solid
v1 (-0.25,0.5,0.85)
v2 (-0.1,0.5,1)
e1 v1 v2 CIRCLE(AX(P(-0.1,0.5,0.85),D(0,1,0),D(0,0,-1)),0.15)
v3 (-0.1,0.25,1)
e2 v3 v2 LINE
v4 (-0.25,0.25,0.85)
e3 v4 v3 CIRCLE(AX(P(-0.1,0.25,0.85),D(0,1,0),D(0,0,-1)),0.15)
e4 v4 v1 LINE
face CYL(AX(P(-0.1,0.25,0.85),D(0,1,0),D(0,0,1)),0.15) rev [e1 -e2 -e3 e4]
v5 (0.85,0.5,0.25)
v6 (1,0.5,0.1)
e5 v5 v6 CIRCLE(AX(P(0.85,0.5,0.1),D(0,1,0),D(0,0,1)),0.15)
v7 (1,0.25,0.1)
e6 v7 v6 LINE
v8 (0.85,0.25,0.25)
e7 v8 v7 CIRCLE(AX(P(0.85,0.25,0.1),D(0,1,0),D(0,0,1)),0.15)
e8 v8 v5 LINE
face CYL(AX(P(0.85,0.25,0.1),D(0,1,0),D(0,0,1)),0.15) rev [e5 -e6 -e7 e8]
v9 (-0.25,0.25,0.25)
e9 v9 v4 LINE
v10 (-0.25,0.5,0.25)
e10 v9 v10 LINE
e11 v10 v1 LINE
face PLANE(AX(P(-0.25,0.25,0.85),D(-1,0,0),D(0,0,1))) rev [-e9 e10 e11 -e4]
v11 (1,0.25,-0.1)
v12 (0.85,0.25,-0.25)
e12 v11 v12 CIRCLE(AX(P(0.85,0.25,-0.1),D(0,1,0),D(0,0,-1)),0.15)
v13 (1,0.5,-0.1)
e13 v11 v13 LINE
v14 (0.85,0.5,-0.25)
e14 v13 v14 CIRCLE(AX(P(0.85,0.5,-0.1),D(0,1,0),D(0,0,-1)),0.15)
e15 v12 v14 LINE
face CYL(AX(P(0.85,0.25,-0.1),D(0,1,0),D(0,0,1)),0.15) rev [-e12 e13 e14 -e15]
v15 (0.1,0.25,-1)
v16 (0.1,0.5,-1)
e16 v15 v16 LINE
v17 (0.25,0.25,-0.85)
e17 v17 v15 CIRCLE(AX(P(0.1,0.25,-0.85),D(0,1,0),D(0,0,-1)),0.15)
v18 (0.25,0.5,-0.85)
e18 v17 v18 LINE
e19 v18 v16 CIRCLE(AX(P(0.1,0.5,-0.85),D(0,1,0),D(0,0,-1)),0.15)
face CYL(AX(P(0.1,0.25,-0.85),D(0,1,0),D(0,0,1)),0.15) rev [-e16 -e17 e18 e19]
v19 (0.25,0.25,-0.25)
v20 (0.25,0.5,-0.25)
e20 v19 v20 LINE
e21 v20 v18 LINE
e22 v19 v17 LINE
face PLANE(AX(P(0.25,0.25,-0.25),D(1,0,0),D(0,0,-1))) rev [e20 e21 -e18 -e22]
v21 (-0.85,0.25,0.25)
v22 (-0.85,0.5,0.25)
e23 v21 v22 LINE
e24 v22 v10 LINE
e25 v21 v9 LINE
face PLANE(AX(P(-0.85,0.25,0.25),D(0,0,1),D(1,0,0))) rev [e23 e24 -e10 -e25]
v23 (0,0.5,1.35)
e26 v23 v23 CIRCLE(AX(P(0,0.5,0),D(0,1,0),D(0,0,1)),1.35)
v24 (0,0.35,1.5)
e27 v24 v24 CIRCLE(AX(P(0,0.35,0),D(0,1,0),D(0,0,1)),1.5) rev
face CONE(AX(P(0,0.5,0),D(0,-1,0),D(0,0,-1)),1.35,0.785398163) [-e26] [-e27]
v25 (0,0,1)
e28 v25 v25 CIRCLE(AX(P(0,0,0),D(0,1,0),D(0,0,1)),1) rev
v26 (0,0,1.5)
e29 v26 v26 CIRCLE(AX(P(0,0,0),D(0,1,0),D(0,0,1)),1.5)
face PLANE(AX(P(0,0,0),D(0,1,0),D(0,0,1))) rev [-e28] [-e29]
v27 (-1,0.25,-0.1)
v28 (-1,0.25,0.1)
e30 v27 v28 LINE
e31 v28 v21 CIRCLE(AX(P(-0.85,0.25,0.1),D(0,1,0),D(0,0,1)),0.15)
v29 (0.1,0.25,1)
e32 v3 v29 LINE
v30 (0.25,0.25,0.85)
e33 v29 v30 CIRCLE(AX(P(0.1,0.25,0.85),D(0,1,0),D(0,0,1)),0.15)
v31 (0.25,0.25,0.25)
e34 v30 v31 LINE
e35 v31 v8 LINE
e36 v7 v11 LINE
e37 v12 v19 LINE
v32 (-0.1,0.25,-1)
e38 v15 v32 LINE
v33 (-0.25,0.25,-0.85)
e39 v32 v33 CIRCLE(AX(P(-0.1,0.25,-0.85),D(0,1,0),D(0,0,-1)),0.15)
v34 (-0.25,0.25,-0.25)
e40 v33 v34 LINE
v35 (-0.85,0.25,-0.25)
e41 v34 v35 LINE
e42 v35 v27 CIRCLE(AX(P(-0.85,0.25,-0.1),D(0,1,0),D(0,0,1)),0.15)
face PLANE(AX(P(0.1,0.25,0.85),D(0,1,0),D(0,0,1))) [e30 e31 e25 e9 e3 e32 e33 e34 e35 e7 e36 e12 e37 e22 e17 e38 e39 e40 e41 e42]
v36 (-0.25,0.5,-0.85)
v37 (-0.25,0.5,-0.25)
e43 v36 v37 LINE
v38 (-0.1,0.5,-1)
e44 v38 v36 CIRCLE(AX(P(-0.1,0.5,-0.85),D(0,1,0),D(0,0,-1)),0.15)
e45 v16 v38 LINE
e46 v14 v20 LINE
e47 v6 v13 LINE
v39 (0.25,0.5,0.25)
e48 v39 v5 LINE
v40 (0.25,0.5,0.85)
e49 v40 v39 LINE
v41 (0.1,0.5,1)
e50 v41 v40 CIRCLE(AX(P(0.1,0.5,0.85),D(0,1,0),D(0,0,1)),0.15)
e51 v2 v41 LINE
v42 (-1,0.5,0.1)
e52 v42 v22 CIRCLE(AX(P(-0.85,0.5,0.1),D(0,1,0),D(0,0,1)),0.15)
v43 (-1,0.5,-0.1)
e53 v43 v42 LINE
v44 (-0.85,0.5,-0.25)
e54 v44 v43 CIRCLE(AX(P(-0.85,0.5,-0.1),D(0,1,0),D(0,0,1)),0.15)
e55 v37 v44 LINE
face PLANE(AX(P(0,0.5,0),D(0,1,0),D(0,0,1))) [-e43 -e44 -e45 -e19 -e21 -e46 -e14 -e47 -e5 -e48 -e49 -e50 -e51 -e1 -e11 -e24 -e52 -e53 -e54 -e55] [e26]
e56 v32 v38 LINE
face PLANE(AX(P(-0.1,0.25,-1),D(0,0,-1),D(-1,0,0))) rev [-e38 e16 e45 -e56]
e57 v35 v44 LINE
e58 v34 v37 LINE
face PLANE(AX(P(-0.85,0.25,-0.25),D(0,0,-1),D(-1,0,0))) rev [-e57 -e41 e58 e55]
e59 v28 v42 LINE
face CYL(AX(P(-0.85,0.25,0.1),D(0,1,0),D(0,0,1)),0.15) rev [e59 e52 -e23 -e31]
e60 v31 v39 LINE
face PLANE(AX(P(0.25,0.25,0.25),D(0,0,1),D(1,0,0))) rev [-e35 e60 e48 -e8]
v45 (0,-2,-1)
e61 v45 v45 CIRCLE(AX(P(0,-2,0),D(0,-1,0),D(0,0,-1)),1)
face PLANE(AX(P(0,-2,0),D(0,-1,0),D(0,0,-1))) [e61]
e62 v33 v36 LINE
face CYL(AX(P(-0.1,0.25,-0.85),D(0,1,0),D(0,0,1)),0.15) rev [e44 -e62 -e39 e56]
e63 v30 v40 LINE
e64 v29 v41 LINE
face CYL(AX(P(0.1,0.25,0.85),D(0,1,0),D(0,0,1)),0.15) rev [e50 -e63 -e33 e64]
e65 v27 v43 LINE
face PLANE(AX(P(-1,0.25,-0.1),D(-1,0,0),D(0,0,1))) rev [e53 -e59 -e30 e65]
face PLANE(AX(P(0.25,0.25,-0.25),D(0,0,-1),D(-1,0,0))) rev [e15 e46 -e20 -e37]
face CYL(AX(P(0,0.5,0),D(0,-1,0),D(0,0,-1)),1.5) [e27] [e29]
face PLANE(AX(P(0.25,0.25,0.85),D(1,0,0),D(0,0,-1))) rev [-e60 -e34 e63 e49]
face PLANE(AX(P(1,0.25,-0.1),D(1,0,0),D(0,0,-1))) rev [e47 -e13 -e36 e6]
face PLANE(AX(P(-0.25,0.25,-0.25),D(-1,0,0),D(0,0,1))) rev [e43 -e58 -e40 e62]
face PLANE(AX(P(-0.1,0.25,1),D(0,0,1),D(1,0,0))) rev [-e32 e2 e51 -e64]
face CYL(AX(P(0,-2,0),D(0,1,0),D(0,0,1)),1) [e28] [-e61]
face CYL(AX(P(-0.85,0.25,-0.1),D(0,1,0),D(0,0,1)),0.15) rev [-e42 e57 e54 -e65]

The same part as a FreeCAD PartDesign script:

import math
import FreeCAD as App
import Part
import Sketcher

V = App.Vector
Q = App.Units.Quantity


def edges_at(feature, points):
    """Names of the edges that pass closest to the given points."""
    edges = feature.Shape.Edges
    near = lambda p: min(range(len(edges)), key=lambda i: edges[i].distToShape(Part.Vertex(*p))[0])
    return sorted({f"Edge{near(p) + 1}" for p in points})

doc = App.newDocument("Part")
body = doc.addObject("PartDesign::Body", "Body")

# Sketch on XZ plane
sketch1 = doc.addObject("Sketcher::SketchObject", "Sketch")
body.addObject(sketch1)
sketch1.AttachmentSupport = (doc.XZ_Plane, [""])
sketch1.MapMode = "FlatFace"
sketch1.addGeometry(Part.Circle(V(0, 0, 0), V(0, 0, 1), 1.5), False)
sketch1.addConstraint(Sketcher.Constraint("Coincident", 0, 3, -1, 1))
sketch1.addConstraint(Sketcher.Constraint("Diameter", 0, Q("3 mm")))
pad1 = doc.addObject("PartDesign::Pad", "Pad")
body.addObject(pad1)
pad1.Profile = sketch1
pad1.Length = 0.5
pad1.Reversed = True

# Sketch on XZ plane
sketch2 = doc.addObject("Sketcher::SketchObject", "Sketch001")
body.addObject(sketch2)
sketch2.AttachmentSupport = (doc.XZ_Plane, [""])
sketch2.MapMode = "FlatFace"
sketch2.AttachmentOffset = App.Placement(V(0, 0, -0.5), App.Rotation())
sketch2.addGeometry(Part.LineSegment(V(-0.1, 1, 0), V(0.1, 1, 0)), False)
sketch2.addGeometry(Part.ArcOfCircle(Part.Circle(V(0.1, 0.85, 0), V(0, 0, 1), 0.15), math.radians(0), math.radians(90)), False)
sketch2.addGeometry(Part.LineSegment(V(0.25, 0.85, 0), V(0.25, 0.25, 0)), False)
sketch2.addGeometry(Part.LineSegment(V(0.25, 0.25, 0), V(0.85, 0.25, 0)), False)
sketch2.addGeometry(Part.ArcOfCircle(Part.Circle(V(0.85, 0.1, 0), V(0, 0, 1), 0.15), math.radians(0), math.radians(90)), False)
sketch2.addGeometry(Part.LineSegment(V(1, 0.1, 0), V(1, -0.1, 0)), False)
sketch2.addGeometry(Part.ArcOfCircle(Part.Circle(V(0.85, -0.1, 0), V(0, 0, 1), 0.15), math.radians(-90), math.radians(0)), False)
sketch2.addGeometry(Part.LineSegment(V(0.85, -0.25, 0), V(0.25, -0.25, 0)), False)
sketch2.addGeometry(Part.LineSegment(V(0.25, -0.25, 0), V(0.25, -0.85, 0)), False)
sketch2.addGeometry(Part.ArcOfCircle(Part.Circle(V(0.1, -0.85, 0), V(0, 0, 1), 0.15), math.radians(-90), math.radians(0)), False)
sketch2.addGeometry(Part.LineSegment(V(0.1, -1, 0), V(-0.1, -1, 0)), False)
sketch2.addGeometry(Part.ArcOfCircle(Part.Circle(V(-0.1, -0.85, 0), V(0, 0, 1), 0.15), math.radians(-180), math.radians(-90)), False)
sketch2.addGeometry(Part.LineSegment(V(-0.25, -0.85, 0), V(-0.25, -0.25, 0)), False)
sketch2.addGeometry(Part.LineSegment(V(-0.25, -0.25, 0), V(-0.85, -0.25, 0)), False)
sketch2.addGeometry(Part.ArcOfCircle(Part.Circle(V(-0.85, -0.1, 0), V(0, 0, 1), 0.15), math.radians(-180), math.radians(-90)), False)
sketch2.addGeometry(Part.LineSegment(V(-1, -0.1, 0), V(-1, 0.1, 0)), False)
sketch2.addGeometry(Part.ArcOfCircle(Part.Circle(V(-0.85, 0.1, 0), V(0, 0, 1), 0.15), math.radians(90), math.radians(180)), False)
sketch2.addGeometry(Part.LineSegment(V(-0.85, 0.25, 0), V(-0.25, 0.25, 0)), False)
sketch2.addGeometry(Part.LineSegment(V(-0.25, 0.25, 0), V(-0.25, 0.85, 0)), False)
sketch2.addGeometry(Part.ArcOfCircle(Part.Circle(V(-0.1, 0.85, 0), V(0, 0, 1), 0.15), math.radians(90), math.radians(180)), False)
sketch2.addConstraint(Sketcher.Constraint("Tangent", 0, 2, 1, 2))
sketch2.addConstraint(Sketcher.Constraint("Tangent", 1, 1, 2, 1))
sketch2.addConstraint(Sketcher.Constraint("Coincident", 2, 2, 3, 1))
sketch2.addConstraint(Sketcher.Constraint("Tangent", 3, 2, 4, 2))
sketch2.addConstraint(Sketcher.Constraint("Tangent", 4, 1, 5, 1))
sketch2.addConstraint(Sketcher.Constraint("Tangent", 5, 2, 6, 2))
sketch2.addConstraint(Sketcher.Constraint("Tangent", 6, 1, 7, 1))
sketch2.addConstraint(Sketcher.Constraint("Coincident", 7, 2, 8, 1))
sketch2.addConstraint(Sketcher.Constraint("Tangent", 8, 2, 9, 2))
sketch2.addConstraint(Sketcher.Constraint("Tangent", 9, 1, 10, 1))
sketch2.addConstraint(Sketcher.Constraint("Tangent", 10, 2, 11, 2))
sketch2.addConstraint(Sketcher.Constraint("Tangent", 11, 1, 12, 1))
sketch2.addConstraint(Sketcher.Constraint("Coincident", 12, 2, 13, 1))
sketch2.addConstraint(Sketcher.Constraint("Tangent", 13, 2, 14, 2))
sketch2.addConstraint(Sketcher.Constraint("Tangent", 14, 1, 15, 1))
sketch2.addConstraint(Sketcher.Constraint("Tangent", 15, 2, 16, 2))
sketch2.addConstraint(Sketcher.Constraint("Tangent", 16, 1, 17, 1))
sketch2.addConstraint(Sketcher.Constraint("Coincident", 17, 2, 18, 1))
sketch2.addConstraint(Sketcher.Constraint("Tangent", 18, 2, 19, 2))
sketch2.addConstraint(Sketcher.Constraint("Tangent", 19, 1, 0, 1))
sketch2.addConstraint(Sketcher.Constraint("Horizontal", 0))
sketch2.addConstraint(Sketcher.Constraint("Vertical", 2))
sketch2.addConstraint(Sketcher.Constraint("Horizontal", 3))
sketch2.addConstraint(Sketcher.Constraint("Vertical", 5))
sketch2.addConstraint(Sketcher.Constraint("Horizontal", 7))
sketch2.addConstraint(Sketcher.Constraint("Vertical", 8))
sketch2.addConstraint(Sketcher.Constraint("Horizontal", 10))
sketch2.addConstraint(Sketcher.Constraint("Vertical", 12))
sketch2.addConstraint(Sketcher.Constraint("Horizontal", 13))
sketch2.addConstraint(Sketcher.Constraint("Vertical", 15))
sketch2.addConstraint(Sketcher.Constraint("Horizontal", 17))
sketch2.addConstraint(Sketcher.Constraint("Vertical", 18))
sketch2.addConstraint(Sketcher.Constraint("Equal", 1, 4))
sketch2.addConstraint(Sketcher.Constraint("Equal", 4, 6))
sketch2.addConstraint(Sketcher.Constraint("Equal", 6, 9))
sketch2.addConstraint(Sketcher.Constraint("Equal", 9, 11))
sketch2.addConstraint(Sketcher.Constraint("Equal", 11, 14))
sketch2.addConstraint(Sketcher.Constraint("Equal", 14, 16))
sketch2.addConstraint(Sketcher.Constraint("Equal", 16, 19))
sketch2.addConstraint(Sketcher.Constraint("Symmetric", 1, 3, 11, 3, -1, 1))
sketch2.addConstraint(Sketcher.Constraint("Symmetric", 4, 3, 14, 3, -1, 1))
sketch2.addConstraint(Sketcher.Constraint("Symmetric", 7, 2, 17, 2, -1, 1))
sketch2.addConstraint(Sketcher.Constraint("Symmetric", 7, 2, 12, 2, -2))
sketch2.addConstraint(Sketcher.Constraint("Equal", 17, 2))
sketch2.addConstraint(Sketcher.Constraint("Equal", 10, 5))
sketch2.addConstraint(Sketcher.Constraint("Radius", 1, Q("0.15 mm")))
sketch2.addConstraint(Sketcher.Constraint("DistanceX", 0, 1, 0, 2, Q("0.2 mm")))
sketch2.addConstraint(Sketcher.Constraint("DistanceX", 3, 1, 3, 2, Q("0.6 mm")))
pocket1 = doc.addObject("PartDesign::Pocket", "Pocket")
body.addObject(pocket1)
pocket1.Profile = sketch2
pocket1.Length = 0.25
pocket1.Reversed = True
doc.recompute()

chamfer = doc.addObject("PartDesign::Chamfer", "Chamfer")
body.addObject(chamfer)
chamfer.Base = (pocket1, edges_at(pocket1, [(0, 0.5, -1.5)]))
chamfer.Size = 0.15

# Sketch on XZ plane
sketch3 = doc.addObject("Sketcher::SketchObject", "Sketch002")
body.addObject(sketch3)
sketch3.AttachmentSupport = (doc.XZ_Plane, [""])
sketch3.MapMode = "FlatFace"
sketch3.addGeometry(Part.Circle(V(0, 0, 0), V(0, 0, 1), 1), False)
sketch3.addConstraint(Sketcher.Constraint("Coincident", 0, 3, -1, 1))
sketch3.addConstraint(Sketcher.Constraint("Diameter", 0, Q("2 mm")))
pad2 = doc.addObject("PartDesign::Pad", "Pad001")
body.addObject(pad2)
pad2.Profile = sketch3
pad2.Length = 2

doc.recompute()
